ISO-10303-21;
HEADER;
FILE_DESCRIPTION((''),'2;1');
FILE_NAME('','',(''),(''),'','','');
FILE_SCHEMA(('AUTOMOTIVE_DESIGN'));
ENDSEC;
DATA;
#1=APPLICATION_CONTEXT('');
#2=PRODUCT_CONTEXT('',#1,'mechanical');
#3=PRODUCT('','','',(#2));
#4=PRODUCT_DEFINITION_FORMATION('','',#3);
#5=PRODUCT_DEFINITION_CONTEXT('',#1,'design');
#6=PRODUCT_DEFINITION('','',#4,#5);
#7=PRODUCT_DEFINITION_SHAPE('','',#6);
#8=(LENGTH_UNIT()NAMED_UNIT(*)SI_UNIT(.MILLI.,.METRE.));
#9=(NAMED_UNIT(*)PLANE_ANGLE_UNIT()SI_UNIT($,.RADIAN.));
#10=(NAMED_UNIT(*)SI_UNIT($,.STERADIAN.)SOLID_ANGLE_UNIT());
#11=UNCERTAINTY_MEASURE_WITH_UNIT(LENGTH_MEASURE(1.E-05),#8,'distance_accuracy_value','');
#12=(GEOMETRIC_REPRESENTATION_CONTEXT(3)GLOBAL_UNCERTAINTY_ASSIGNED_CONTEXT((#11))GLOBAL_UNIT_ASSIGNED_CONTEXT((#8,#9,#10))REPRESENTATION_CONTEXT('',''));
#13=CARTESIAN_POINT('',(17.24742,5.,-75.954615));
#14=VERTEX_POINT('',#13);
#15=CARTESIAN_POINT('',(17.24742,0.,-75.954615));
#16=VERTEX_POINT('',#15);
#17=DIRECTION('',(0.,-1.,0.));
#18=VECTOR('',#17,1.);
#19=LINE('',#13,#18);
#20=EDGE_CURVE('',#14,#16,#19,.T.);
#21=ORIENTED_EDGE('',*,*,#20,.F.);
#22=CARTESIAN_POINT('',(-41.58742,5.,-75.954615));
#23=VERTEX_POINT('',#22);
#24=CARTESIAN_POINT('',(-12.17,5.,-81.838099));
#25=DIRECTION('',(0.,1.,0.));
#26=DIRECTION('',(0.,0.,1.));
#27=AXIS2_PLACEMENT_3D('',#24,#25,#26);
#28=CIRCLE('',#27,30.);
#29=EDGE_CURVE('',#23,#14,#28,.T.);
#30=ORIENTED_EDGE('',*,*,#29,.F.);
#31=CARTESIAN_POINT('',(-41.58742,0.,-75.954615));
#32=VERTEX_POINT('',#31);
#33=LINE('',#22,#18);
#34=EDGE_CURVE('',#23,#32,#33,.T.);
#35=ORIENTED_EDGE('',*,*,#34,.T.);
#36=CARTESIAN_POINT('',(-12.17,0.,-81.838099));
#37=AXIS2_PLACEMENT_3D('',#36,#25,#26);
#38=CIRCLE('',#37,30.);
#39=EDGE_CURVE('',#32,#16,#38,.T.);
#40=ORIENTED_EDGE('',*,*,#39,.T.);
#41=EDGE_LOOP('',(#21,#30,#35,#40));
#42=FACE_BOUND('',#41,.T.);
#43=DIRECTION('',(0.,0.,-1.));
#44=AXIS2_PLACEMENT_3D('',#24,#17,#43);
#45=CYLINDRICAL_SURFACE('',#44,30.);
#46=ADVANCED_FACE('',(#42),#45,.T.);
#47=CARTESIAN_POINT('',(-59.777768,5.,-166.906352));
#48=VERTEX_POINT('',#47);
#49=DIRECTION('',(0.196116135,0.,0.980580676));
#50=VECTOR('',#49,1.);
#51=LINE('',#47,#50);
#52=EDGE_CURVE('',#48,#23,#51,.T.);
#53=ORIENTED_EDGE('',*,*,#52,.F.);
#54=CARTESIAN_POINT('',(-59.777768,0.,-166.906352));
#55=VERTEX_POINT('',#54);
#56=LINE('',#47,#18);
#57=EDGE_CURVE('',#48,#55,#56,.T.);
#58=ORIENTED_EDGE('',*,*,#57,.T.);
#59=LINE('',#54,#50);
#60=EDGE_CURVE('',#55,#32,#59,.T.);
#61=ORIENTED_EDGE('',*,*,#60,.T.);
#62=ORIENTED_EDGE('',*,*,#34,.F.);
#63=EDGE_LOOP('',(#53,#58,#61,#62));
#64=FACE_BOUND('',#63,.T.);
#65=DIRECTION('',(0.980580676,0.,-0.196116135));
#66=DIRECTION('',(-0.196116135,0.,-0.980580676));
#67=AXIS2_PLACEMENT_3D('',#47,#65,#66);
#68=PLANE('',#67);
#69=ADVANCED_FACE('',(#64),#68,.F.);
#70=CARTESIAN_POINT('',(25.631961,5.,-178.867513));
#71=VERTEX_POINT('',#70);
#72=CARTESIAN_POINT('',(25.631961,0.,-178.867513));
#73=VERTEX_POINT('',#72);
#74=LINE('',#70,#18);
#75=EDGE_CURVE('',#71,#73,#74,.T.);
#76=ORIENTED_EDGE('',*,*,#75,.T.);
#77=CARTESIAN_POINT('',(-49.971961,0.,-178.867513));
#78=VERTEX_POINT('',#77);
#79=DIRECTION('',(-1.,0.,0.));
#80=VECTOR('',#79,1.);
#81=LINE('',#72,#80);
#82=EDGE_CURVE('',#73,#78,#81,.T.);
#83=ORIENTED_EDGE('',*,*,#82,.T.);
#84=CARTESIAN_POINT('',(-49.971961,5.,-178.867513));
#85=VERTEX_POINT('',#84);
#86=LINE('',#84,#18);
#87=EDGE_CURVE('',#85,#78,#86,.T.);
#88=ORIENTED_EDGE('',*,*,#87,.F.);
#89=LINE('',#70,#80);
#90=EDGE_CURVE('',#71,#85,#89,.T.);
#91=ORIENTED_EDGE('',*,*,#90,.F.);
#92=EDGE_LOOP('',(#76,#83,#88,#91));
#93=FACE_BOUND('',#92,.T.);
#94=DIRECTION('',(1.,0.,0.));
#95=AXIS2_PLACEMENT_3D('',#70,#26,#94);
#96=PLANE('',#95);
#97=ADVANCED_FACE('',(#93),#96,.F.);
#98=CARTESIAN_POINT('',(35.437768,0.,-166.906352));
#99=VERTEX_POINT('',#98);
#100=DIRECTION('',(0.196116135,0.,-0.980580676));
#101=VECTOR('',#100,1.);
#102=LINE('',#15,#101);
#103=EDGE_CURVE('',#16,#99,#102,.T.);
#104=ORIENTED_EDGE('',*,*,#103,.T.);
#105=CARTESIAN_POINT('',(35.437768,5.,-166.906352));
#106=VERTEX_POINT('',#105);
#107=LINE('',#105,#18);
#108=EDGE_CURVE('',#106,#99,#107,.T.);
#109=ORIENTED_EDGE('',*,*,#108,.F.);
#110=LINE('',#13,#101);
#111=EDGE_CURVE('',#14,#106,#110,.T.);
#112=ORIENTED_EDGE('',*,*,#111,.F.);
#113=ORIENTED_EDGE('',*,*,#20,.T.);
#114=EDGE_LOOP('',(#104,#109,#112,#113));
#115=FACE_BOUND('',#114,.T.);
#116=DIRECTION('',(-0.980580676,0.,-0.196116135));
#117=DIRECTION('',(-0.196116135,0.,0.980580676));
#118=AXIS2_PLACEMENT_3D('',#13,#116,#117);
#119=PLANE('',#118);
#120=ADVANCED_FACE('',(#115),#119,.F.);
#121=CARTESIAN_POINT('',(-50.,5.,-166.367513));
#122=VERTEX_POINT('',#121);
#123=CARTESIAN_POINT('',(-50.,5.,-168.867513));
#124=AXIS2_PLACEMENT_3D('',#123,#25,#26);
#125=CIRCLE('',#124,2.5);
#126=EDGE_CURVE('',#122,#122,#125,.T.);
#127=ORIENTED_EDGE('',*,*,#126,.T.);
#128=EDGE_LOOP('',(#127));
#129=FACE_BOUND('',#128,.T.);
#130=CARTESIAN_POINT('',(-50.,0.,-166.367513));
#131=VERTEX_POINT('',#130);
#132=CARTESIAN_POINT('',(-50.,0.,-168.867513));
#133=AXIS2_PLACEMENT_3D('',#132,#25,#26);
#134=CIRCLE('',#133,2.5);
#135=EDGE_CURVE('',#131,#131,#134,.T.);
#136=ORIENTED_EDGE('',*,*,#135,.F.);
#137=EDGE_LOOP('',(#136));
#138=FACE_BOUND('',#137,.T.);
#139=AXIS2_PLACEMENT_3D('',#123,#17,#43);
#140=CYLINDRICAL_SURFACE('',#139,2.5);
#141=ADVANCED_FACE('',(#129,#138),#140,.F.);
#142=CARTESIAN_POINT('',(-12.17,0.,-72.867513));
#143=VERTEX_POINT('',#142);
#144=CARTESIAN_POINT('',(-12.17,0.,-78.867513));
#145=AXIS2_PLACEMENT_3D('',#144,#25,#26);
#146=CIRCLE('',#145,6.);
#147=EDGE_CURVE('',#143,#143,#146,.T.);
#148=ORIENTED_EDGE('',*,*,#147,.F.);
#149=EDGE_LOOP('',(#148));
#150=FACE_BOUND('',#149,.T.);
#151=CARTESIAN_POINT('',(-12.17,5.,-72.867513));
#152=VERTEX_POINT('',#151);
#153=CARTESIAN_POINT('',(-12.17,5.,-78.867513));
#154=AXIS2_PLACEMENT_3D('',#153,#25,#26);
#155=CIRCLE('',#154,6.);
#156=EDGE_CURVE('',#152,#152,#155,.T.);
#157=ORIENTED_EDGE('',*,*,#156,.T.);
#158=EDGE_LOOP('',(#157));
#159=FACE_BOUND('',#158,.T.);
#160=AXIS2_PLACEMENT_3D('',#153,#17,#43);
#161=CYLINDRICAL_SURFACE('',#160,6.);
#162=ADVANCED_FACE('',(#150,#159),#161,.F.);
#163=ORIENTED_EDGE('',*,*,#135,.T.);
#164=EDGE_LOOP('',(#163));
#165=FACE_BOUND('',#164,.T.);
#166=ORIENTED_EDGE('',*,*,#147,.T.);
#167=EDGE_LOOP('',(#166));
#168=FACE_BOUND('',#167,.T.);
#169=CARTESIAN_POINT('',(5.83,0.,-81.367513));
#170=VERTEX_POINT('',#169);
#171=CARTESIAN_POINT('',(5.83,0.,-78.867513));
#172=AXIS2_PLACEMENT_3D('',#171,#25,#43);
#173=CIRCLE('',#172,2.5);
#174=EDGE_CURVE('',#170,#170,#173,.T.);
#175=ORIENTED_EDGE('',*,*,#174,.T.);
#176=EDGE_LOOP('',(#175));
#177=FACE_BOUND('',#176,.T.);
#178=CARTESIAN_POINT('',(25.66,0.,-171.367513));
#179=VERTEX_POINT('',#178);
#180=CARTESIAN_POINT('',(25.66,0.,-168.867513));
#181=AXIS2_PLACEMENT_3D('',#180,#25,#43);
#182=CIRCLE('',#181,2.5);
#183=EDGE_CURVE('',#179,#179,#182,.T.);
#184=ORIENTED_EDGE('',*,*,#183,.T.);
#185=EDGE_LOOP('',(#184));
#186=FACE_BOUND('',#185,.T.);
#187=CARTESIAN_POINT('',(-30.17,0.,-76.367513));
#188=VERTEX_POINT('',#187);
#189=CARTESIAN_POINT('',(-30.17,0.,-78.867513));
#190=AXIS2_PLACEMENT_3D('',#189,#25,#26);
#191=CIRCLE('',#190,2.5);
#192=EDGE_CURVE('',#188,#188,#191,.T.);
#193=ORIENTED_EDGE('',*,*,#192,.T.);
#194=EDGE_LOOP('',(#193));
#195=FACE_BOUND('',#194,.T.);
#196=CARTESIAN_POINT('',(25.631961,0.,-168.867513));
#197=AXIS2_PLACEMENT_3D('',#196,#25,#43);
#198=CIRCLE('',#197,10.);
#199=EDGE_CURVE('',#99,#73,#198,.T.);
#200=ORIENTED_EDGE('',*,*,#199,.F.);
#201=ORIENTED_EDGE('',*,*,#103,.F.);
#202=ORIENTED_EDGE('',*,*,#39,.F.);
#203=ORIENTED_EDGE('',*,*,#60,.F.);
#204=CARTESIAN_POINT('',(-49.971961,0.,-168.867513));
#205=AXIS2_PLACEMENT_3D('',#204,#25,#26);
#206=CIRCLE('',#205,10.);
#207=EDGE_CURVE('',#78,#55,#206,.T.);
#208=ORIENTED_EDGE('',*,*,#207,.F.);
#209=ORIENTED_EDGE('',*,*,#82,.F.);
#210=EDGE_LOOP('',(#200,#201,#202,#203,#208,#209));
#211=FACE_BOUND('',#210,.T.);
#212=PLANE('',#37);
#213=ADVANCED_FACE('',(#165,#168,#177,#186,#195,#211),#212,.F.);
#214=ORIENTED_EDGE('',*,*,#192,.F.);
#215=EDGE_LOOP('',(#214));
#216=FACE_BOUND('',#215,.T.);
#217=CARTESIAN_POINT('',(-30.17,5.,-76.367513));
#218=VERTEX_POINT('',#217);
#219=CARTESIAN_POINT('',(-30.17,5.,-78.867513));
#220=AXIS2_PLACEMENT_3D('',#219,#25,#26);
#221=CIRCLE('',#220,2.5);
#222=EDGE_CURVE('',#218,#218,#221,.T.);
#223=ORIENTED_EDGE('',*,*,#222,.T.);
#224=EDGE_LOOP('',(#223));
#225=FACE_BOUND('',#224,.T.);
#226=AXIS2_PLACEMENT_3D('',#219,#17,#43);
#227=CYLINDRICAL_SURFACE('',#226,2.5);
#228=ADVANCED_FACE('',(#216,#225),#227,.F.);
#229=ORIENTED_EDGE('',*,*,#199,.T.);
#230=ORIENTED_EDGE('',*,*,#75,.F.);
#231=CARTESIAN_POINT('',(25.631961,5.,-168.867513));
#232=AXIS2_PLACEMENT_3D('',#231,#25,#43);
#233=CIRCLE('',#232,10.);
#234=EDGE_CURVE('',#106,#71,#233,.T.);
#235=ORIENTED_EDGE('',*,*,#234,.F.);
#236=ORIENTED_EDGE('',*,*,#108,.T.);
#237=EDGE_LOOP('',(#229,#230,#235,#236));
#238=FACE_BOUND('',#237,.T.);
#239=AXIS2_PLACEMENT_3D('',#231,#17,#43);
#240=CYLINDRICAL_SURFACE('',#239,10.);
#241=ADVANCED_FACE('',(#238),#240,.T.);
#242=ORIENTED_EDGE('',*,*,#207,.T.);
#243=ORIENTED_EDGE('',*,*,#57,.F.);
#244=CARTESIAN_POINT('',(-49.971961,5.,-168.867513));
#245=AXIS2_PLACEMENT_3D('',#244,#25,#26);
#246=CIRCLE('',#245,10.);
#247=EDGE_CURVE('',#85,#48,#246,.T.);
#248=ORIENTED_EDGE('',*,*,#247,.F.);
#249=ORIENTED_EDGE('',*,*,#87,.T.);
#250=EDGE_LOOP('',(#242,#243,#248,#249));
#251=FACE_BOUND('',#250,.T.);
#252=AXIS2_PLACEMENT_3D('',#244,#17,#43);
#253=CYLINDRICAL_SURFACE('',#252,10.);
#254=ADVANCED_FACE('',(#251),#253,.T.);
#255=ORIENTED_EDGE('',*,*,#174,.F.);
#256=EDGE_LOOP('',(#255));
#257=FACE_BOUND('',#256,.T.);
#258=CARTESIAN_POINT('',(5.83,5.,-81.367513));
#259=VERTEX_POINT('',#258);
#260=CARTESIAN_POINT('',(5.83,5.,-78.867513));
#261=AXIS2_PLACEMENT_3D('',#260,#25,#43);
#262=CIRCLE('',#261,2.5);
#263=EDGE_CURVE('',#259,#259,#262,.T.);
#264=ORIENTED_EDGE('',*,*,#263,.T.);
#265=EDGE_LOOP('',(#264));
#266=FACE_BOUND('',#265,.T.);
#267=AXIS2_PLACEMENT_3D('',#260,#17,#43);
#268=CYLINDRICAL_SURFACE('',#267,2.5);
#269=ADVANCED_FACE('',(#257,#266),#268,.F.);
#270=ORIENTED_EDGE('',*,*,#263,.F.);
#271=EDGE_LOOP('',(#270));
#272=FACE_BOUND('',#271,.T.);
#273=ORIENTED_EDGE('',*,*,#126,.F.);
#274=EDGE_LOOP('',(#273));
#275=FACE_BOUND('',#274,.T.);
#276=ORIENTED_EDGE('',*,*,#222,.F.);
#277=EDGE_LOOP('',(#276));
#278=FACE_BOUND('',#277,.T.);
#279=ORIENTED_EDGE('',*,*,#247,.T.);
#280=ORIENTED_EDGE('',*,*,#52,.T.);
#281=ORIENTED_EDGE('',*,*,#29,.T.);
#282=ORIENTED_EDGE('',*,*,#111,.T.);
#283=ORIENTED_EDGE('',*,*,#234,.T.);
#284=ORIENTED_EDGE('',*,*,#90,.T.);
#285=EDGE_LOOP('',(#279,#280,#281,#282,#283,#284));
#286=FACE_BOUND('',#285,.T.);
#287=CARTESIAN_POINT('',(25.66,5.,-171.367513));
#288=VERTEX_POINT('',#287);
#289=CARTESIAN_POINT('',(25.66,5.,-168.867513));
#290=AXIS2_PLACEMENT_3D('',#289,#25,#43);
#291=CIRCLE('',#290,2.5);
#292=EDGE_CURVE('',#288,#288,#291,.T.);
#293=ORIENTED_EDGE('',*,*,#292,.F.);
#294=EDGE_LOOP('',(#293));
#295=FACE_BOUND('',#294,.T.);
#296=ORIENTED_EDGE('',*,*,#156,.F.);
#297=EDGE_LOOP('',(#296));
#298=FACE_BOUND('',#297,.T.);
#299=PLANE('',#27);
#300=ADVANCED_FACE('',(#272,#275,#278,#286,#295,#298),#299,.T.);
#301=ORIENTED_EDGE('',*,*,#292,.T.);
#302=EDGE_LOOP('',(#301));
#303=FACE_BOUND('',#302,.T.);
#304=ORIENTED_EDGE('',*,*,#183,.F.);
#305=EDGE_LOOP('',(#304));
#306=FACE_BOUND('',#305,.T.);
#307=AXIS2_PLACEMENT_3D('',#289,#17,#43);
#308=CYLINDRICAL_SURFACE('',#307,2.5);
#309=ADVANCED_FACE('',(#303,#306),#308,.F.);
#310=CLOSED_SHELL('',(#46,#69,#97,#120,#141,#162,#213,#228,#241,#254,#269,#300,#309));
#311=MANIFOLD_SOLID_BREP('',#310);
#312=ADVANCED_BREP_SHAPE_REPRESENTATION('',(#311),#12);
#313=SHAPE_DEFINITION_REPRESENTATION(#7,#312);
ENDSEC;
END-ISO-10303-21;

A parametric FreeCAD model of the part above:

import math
import FreeCAD as App
import Part
import Sketcher

V = App.Vector

doc = App.newDocument("Part")
body = doc.addObject("PartDesign::Body", "Body")

# Sketch on XZ plane
sketch1 = body.newObject("Sketcher::SketchObject", "Sketch")
sketch1.AttachmentSupport = (doc.getObject("XZ_Plane"), [""])
sketch1.MapMode = "FlatFace"
sketch1.addGeometry(Part.LineSegment(V(25.6, -178.9, 0), V(-50, -178.9, 0)), False)
sketch1.addGeometry(Part.ArcOfCircle(Part.Circle(V(-50, -168.9, 0), V(0, 0, 1), 10), math.radians(169), math.radians(270)), False)
sketch1.addGeometry(Part.LineSegment(V(-59.8, -166.9, 0), V(-41.6, -76, 0)), False)
sketch1.addGeometry(Part.ArcOfCircle(Part.Circle(V(-12.2, -81.8, 0), V(0, 0, 1), 30), math.radians(11), math.radians(169)), False)
sketch1.addGeometry(Part.LineSegment(V(17.2, -76, 0), V(35.4, -166.9, 0)), False)
sketch1.addGeometry(Part.ArcOfCircle(Part.Circle(V(25.6, -168.9, 0), V(0, 0, 1), 10), math.radians(-90), math.radians(11)), False)
sketch1.addGeometry(Part.Circle(V(-30.2, -78.9, 0), V(0, 0, 1), 2.5), False)
sketch1.addGeometry(Part.Circle(V(-12.2, -78.9, 0), V(0, 0, 1), 6), False)
sketch1.addGeometry(Part.Circle(V(5.8, -78.9, 0), V(0, 0, 1), 2.5), False)
sketch1.addGeometry(Part.Circle(V(-50, -168.9, 0), V(0, 0, 1), 2.5), False)
sketch1.addGeometry(Part.Circle(V(25.7, -168.9, 0), V(0, 0, 1), 2.5), False)
sketch1.addConstraint(Sketcher.Constraint("Tangent", 0, 2, 1, 2))
sketch1.addConstraint(Sketcher.Constraint("Tangent", 1, 1, 2, 1))
sketch1.addConstraint(Sketcher.Constraint("Tangent", 2, 2, 3, 2))
sketch1.addConstraint(Sketcher.Constraint("Tangent", 3, 1, 4, 1))
sketch1.addConstraint(Sketcher.Constraint("Tangent", 4, 2, 5, 2))
sketch1.addConstraint(Sketcher.Constraint("Tangent", 5, 1, 0, 1))
sketch1.addConstraint(Sketcher.Constraint("Horizontal", 0))
sketch1.addConstraint(Sketcher.Constraint("Equal", 1, 5))
sketch1.addConstraint(Sketcher.Constraint("Equal", 6, 8))
sketch1.addConstraint(Sketcher.Constraint("Equal", 8, 9))
sketch1.addConstraint(Sketcher.Constraint("Equal", 9, 10))
sketch1.addConstraint(Sketcher.Constraint("Horizontal", 6, 3, 7, 3))
sketch1.addConstraint(Sketcher.Constraint("Horizontal", 7, 3, 8, 3))
sketch1.addConstraint(Sketcher.Constraint("Horizontal", 5, 3, 9, 3))
sketch1.addConstraint(Sketcher.Constraint("Horizontal", 9, 3, 10, 3))
sketch1.addConstraint(Sketcher.Constraint("Horizontal", 2, 2, 3, 1))
sketch1.addConstraint(Sketcher.Constraint("Vertical", 3, 3, 7, 3))
sketch1.addConstraint(Sketcher.Constraint("Diameter", 6, 5.0))
sketch1.addConstraint(Sketcher.Constraint("Diameter", 7, 12.0))
sketch1.addConstraint(Sketcher.Constraint("Radius", 1, 10.0))
sketch1.addConstraint(Sketcher.Constraint("Radius", 3, 30.0))
sketch1.addConstraint(Sketcher.Constraint("DistanceX", 9, 3, -1, 1, 50.0))
sketch1.addConstraint(Sketcher.Constraint("DistanceX", 6, 3, 3, 3, 18.0))
sketch1.addConstraint(Sketcher.Constraint("DistanceY", 1, 3, 6, 3, 90.0))
sketch1.addConstraint(Sketcher.Constraint("DistanceX", 7, 3, 8, 3, 18.0))
sketch1.addConstraint(Sketcher.Constraint("DistanceX", 3, 3, -1, 1, 12.17))
sketch1.addConstraint(Sketcher.Constraint("DistanceX", -1, 1, 10, 3, 25.66))
sketch1.addConstraint(Sketcher.Constraint("DistanceX", 0, 2, 0, 1, 75.603922))
sketch1.addConstraint(Sketcher.Constraint("DistanceY", 3, 3, -1, 1, 81.838099))
sketch1.addConstraint(Sketcher.Constraint("DistanceY", 6, 3, 2, 2, 2.912899))
pad1 = body.newObject("PartDesign::Pad", "Pad")
pad1.Profile = sketch1
pad1.Length = 5
pad1.Reversed = True

doc.recompute()
